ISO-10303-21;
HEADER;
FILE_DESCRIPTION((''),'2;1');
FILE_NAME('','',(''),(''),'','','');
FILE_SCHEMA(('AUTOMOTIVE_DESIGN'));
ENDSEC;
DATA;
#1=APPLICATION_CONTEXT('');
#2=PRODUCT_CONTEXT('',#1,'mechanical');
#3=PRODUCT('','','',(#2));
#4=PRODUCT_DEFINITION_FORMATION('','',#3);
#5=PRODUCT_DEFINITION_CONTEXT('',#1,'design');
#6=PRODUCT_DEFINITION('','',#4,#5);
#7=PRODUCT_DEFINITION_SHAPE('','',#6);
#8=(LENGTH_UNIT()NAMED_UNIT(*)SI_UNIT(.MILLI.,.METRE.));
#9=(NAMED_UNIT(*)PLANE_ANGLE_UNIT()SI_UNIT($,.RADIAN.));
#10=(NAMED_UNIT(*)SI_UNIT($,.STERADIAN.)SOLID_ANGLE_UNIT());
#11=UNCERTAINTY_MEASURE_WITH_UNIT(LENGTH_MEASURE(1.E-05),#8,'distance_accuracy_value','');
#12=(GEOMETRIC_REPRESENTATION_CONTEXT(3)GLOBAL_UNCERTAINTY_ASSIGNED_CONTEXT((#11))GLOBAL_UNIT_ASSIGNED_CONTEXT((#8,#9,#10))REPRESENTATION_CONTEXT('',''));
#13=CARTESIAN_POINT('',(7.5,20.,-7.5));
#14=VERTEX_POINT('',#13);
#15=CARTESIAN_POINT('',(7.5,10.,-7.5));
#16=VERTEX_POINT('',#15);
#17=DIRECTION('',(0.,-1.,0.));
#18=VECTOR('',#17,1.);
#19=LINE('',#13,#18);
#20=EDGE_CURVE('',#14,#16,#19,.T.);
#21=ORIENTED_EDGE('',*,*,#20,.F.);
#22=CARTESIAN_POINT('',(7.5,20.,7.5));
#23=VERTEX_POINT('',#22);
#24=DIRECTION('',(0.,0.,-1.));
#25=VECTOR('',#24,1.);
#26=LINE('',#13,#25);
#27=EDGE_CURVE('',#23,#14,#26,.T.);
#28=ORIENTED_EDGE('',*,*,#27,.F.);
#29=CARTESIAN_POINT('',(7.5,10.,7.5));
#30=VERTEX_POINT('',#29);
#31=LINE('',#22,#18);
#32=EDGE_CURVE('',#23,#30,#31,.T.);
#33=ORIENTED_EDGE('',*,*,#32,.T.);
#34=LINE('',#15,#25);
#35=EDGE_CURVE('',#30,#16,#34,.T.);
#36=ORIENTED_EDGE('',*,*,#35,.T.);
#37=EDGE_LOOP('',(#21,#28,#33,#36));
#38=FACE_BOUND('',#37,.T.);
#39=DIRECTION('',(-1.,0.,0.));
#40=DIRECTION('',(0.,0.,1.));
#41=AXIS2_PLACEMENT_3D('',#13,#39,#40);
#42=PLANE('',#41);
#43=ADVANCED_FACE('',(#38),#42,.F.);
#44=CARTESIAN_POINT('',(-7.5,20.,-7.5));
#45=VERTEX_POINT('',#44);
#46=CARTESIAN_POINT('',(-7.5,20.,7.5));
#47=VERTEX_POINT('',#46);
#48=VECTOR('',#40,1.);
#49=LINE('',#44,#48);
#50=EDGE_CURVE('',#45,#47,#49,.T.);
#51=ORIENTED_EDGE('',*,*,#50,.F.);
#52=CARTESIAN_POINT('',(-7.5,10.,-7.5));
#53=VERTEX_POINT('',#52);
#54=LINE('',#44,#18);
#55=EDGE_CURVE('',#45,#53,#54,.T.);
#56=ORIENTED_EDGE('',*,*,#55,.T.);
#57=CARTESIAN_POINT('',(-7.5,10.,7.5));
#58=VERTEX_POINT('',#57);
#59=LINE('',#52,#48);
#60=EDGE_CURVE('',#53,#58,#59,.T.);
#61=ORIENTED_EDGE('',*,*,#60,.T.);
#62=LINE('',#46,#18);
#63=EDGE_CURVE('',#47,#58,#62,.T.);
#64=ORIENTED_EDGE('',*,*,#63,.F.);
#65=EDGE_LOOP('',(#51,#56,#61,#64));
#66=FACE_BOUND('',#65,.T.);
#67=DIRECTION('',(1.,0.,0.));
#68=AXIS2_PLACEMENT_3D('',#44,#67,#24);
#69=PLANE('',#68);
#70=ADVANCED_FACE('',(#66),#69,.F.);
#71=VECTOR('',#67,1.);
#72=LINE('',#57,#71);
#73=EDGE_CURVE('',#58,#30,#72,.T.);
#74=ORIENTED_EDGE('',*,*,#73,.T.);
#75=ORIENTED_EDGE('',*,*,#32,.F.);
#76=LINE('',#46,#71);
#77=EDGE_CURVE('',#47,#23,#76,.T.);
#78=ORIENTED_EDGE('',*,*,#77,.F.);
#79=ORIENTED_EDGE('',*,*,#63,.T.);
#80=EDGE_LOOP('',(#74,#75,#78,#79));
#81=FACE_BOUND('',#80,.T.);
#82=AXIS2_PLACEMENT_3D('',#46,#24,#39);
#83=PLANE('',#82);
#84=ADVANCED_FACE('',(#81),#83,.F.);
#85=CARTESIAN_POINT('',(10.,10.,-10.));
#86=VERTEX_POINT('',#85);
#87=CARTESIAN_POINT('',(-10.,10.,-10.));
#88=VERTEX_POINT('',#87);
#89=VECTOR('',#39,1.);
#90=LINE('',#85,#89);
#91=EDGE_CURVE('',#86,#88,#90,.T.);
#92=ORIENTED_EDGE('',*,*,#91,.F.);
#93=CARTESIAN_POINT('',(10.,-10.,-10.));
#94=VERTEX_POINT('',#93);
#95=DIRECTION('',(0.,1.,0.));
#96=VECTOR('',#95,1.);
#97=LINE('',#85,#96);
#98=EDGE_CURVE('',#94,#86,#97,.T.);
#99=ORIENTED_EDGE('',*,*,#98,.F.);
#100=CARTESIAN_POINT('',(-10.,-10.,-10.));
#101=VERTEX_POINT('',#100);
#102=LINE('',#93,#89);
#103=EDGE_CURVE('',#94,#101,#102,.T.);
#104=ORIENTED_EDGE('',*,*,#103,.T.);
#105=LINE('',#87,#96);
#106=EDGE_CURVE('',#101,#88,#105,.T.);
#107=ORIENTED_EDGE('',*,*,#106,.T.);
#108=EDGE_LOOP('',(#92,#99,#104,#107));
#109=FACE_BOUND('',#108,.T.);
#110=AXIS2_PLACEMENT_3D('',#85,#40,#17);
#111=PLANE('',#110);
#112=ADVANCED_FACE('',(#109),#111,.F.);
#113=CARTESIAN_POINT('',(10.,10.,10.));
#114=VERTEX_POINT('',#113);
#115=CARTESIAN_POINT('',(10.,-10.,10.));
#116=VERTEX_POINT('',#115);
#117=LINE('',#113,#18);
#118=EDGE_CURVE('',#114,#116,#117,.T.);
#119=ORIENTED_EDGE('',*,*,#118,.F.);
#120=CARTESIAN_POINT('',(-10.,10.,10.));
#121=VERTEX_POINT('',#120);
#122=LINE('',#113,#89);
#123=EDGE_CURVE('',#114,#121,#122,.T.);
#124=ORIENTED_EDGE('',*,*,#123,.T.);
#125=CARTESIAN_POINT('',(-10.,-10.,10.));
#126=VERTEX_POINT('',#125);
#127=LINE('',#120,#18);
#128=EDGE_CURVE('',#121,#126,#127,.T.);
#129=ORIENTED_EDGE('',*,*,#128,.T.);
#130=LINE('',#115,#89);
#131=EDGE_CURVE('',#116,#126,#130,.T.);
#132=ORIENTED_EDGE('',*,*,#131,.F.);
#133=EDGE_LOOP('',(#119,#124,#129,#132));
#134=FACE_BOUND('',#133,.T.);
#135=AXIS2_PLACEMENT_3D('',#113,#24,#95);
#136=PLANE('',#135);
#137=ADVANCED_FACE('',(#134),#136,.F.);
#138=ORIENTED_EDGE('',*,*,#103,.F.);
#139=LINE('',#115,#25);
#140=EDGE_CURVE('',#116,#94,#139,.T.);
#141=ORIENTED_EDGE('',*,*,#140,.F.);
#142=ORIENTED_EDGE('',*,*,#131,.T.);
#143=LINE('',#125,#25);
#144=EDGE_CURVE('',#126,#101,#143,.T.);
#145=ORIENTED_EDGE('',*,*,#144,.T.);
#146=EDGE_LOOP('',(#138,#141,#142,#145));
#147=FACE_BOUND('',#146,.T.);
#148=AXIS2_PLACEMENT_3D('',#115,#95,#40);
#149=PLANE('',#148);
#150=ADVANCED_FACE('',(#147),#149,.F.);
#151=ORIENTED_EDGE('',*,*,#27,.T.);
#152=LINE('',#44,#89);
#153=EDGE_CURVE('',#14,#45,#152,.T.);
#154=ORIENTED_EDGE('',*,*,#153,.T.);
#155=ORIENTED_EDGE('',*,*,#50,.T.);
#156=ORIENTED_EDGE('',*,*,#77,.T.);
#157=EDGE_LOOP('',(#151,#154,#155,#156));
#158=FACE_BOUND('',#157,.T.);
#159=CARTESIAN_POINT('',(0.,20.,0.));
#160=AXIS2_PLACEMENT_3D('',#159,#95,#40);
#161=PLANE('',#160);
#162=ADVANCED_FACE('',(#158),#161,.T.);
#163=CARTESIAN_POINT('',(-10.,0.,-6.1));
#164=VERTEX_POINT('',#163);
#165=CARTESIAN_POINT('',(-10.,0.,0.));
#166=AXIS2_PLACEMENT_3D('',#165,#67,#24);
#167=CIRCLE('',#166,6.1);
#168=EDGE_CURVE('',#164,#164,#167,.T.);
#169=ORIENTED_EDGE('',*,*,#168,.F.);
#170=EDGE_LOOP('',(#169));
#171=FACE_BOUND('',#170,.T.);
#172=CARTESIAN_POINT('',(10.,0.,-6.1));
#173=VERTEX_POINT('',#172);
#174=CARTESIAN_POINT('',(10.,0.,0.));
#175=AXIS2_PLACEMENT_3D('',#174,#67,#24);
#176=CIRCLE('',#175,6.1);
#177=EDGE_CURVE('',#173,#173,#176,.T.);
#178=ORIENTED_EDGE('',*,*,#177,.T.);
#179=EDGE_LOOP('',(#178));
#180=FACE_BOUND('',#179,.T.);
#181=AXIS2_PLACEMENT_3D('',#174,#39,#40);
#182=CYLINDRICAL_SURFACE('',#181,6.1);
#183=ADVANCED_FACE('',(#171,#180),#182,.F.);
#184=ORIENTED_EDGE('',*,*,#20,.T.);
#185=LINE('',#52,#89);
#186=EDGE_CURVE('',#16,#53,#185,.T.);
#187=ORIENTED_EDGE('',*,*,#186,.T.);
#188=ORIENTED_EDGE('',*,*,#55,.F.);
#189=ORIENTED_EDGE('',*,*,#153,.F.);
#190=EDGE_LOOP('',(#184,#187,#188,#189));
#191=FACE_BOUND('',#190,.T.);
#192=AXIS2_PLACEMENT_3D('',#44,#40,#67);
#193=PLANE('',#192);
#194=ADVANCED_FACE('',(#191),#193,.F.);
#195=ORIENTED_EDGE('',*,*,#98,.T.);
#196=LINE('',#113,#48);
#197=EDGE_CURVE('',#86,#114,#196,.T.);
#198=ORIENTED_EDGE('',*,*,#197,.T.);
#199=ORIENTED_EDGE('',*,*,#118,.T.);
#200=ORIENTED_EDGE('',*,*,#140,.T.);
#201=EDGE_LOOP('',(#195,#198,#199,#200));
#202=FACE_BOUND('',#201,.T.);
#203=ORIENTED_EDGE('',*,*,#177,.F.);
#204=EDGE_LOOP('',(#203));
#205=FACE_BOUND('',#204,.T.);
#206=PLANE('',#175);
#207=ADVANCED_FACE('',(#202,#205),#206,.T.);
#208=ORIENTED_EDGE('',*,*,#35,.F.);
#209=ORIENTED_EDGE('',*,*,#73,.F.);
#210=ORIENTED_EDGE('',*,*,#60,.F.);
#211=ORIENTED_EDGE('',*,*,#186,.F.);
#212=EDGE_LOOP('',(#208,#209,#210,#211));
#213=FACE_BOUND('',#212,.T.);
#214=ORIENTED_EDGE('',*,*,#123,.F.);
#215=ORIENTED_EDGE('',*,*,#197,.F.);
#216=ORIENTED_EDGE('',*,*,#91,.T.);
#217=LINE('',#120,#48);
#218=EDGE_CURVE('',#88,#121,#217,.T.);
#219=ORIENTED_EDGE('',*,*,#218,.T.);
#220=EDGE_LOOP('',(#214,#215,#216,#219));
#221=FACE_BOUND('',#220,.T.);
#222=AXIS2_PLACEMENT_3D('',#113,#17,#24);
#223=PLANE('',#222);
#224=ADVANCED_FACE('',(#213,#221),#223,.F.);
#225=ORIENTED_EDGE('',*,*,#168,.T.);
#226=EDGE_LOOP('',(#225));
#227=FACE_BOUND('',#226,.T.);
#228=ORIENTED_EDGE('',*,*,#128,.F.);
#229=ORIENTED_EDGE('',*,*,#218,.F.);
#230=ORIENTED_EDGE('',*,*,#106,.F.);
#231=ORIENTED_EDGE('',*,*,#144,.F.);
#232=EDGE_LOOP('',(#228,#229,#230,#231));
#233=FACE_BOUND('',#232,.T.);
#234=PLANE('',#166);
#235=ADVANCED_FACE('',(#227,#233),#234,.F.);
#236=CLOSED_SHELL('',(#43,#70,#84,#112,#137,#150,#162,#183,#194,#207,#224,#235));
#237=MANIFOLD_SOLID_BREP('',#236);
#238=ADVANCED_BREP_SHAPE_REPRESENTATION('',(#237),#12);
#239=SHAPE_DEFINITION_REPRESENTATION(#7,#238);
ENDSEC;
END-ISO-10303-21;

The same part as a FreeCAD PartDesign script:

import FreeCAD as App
import Part
import Sketcher
Q = App.Units.Quantity


def add_polygon(sketch, points):
    """Adds a closed chain of lines whose ends are joined by coincident constraints."""
    first, n = sketch.GeometryCount, len(points)
    for a, b in zip(points, points[1:] + points[:1]):
        sketch.addGeometry(Part.LineSegment(App.Vector(*a, 0), App.Vector(*b, 0)), False)
    for i in range(n):
        sketch.addConstraint(Sketcher.Constraint("Coincident", first + i, 2, first + (i + 1) % n, 1))

doc = App.newDocument("Part")
body = doc.addObject("PartDesign::Body", "Body")

# Sketch on YZ plane
sketch1 = body.newObject("Sketcher::SketchObject", "Sketch")
sketch1.AttachmentSupport = (doc.getObject("YZ_Plane"), [""])
sketch1.MapMode = "FlatFace"
add_polygon(sketch1, [(10, 10), (-10, 10), (-10, -10), (10, -10)])  # lines 0-3
sketch1.addGeometry(Part.Circle(App.Vector(0, 0, 0), App.Vector(0, 0, 1), 6), False)  # 4
sketch1.addConstraint([
    Sketcher.Constraint("Horizontal", 0),
    Sketcher.Constraint("Vertical", 1),
    Sketcher.Constraint("Horizontal", 2),
    Sketcher.Constraint("Vertical", 3),
    Sketcher.Constraint("Coincident", 4, 3, -1, 1),
    Sketcher.Constraint("Symmetric", 0, 2, 2, 2, -1, 1),
    Sketcher.Constraint("Equal", 2, 1),
    Sketcher.Constraint("Diameter", 4, Q("12.2 mm")),
    Sketcher.Constraint("DistanceX", 0, 2, 0, 1, Q("20 mm")),
])
pad1 = body.newObject("PartDesign::Pad", "Pad")
pad1.Profile = sketch1
pad1.Length = 20
pad1.Midplane = True

# Sketch on XZ plane
sketch2 = body.newObject("Sketcher::SketchObject", "Sketch001")
sketch2.AttachmentSupport = (doc.getObject("XZ_Plane"), [""])
sketch2.MapMode = "FlatFace"
sketch2.AttachmentOffset = App.Placement(App.Vector(0, 0, -10), App.Rotation())
add_polygon(sketch2, [(-8, -8), (-8, 8), (8, 8), (8, -8)])  # lines 0-3
sketch2.addConstraint([
    Sketcher.Constraint("Vertical", 0),
    Sketcher.Constraint("Horizontal", 1),
    Sketcher.Constraint("Vertical", 2),
    Sketcher.Constraint("Horizontal", 3),
    Sketcher.Constraint("Symmetric", 0, 2, 2, 2, -1, 1),
    Sketcher.Constraint("Equal", 3, 0),
    Sketcher.Constraint("DistanceX", 1, 1, 1, 2, Q("15 mm")),
])
pad2 = body.newObject("PartDesign::Pad", "Pad001")
pad2.Profile = sketch2
pad2.Length = 10
pad2.Reversed = True

doc.recompute()
